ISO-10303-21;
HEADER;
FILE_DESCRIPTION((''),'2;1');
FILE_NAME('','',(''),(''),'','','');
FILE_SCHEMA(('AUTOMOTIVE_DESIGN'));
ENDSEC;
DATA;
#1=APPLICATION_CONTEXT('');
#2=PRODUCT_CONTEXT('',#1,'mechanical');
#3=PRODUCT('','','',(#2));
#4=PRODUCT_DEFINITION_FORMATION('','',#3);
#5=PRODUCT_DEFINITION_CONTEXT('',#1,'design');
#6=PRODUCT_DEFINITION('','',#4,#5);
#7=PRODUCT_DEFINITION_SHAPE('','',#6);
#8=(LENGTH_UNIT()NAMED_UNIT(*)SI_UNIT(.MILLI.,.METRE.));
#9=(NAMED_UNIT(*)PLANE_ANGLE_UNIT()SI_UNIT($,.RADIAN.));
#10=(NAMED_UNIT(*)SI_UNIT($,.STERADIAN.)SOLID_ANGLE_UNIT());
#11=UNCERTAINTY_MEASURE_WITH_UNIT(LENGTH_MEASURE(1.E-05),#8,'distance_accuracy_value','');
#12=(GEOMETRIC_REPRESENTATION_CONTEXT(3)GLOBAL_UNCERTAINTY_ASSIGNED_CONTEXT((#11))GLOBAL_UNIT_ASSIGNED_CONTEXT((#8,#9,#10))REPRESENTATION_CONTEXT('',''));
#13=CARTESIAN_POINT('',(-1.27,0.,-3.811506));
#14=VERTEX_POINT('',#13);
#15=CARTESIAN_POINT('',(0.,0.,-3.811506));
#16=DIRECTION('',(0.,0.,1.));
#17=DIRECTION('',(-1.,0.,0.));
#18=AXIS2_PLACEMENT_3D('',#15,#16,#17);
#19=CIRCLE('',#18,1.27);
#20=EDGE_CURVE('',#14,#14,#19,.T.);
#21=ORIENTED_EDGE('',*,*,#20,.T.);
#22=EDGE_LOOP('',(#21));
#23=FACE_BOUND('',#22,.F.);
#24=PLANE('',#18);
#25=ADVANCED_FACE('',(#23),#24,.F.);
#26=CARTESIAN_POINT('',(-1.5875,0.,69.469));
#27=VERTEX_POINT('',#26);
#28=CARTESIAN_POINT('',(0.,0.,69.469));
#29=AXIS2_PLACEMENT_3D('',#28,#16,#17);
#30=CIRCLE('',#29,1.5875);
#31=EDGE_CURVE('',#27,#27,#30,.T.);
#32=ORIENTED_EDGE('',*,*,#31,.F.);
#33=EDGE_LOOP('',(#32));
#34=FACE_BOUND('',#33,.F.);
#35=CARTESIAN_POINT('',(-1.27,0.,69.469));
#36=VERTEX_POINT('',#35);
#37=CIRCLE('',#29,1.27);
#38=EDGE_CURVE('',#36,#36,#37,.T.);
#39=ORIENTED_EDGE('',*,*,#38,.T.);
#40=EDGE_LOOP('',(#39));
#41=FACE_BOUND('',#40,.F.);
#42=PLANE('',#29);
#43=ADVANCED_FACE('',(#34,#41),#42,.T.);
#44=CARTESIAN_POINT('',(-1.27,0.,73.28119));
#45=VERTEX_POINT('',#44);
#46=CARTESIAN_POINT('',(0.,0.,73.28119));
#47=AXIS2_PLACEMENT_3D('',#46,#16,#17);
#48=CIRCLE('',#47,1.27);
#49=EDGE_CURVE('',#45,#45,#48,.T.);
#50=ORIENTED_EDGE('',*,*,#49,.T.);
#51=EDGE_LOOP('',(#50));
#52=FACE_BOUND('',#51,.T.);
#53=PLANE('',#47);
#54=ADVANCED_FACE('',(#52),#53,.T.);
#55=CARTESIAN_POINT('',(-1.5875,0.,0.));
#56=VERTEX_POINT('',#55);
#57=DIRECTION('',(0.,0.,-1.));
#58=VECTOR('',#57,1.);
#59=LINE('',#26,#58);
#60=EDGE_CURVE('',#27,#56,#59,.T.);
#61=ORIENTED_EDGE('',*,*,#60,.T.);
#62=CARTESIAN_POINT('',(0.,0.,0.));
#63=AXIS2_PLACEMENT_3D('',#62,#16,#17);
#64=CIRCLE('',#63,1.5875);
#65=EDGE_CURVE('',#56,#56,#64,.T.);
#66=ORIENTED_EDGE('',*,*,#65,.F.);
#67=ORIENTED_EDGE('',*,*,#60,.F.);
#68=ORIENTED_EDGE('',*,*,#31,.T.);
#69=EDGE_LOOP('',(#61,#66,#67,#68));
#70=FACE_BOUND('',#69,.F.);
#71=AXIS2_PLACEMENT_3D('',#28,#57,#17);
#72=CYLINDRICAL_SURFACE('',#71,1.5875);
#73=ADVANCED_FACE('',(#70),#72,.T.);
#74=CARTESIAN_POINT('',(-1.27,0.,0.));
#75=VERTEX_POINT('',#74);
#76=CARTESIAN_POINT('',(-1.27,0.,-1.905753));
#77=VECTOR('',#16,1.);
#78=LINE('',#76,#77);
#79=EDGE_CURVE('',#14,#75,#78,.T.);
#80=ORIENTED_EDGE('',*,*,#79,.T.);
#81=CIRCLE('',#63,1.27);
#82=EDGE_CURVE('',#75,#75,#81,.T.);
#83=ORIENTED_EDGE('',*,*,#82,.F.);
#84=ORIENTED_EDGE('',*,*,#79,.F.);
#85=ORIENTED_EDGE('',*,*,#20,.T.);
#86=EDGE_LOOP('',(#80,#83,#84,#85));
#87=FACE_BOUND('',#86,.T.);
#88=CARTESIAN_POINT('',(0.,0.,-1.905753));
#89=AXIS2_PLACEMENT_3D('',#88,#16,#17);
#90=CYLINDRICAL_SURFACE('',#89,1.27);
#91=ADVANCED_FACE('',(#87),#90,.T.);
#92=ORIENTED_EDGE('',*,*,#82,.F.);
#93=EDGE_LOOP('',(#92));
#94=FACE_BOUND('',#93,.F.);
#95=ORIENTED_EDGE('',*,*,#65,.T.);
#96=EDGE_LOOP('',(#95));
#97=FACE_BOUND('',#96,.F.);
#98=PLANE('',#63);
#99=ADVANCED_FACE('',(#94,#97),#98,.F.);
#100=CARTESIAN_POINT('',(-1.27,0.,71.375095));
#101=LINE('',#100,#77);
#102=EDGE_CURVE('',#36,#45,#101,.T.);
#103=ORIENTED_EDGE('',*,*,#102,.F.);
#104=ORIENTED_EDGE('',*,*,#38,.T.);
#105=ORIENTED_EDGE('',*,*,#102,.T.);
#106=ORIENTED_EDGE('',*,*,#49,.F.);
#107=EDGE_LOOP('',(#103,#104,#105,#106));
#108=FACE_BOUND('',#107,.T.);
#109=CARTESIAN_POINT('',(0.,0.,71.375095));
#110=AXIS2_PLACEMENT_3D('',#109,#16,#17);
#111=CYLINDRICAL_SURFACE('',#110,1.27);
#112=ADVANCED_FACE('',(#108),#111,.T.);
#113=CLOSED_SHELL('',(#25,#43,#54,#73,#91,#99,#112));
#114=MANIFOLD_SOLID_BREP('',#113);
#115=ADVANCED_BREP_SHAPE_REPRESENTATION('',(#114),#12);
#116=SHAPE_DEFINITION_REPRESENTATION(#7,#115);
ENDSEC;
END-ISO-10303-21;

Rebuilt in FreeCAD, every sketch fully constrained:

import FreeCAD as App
import Part
import Sketcher
Q = App.Units.Quantity


def add_polygon(sketch, points):
    """Adds a closed chain of lines whose ends are joined by coincident constraints."""
    first, n = sketch.GeometryCount, len(points)
    for a, b in zip(points, points[1:] + points[:1]):
        sketch.addGeometry(Part.LineSegment(App.Vector(*a, 0), App.Vector(*b, 0)), False)
    for i in range(n):
        sketch.addConstraint(Sketcher.Constraint("Coincident", first + i, 2, first + (i + 1) % n, 1))

doc = App.newDocument("Part")
params = doc.addObject("Spreadsheet::Sheet", "Params")
for row, (alias, value) in enumerate([
    ("sketch1_width", "0.05 in"),
    ("sketch1_height", "2.735 in"),
    ("revolution_angle", "360 deg"),
], start=1):
    params.set(f"A{row}", alias)
    params.set(f"B{row}", "=" + value)
    params.setAlias(f"B{row}", alias)

body = doc.addObject("PartDesign::Body", "Body")

sketch1 = body.newObject("Sketcher::SketchObject", "Sketch")
sketch1.AttachmentSupport = (doc.getObject("XZ_Plane"), [""])
sketch1.MapMode = "FlatFace"
add_polygon(sketch1, [(-1.27, 0), (-1.27, -3.81), (0, -3.81), (0, 73.28), (-1.27, 73.28), (-1.27, 69.47), (-1.59, 69.47), (-1.59, 0)])
sketch1.addConstraint([
    Sketcher.Constraint("Vertical", 0),
    Sketcher.Constraint("Horizontal", 1),
    Sketcher.Constraint("Vertical", 2),
    Sketcher.Constraint("Horizontal", 3),
    Sketcher.Constraint("Vertical", 4),
    Sketcher.Constraint("Horizontal", 5),
    Sketcher.Constraint("Vertical", 6),
    Sketcher.Constraint("Horizontal", 7),
    Sketcher.Constraint("PointOnObject", 1, 2, -2),
    Sketcher.Constraint("PointOnObject", 6, 2, -1),
    Sketcher.Constraint("Vertical", 0, 2, 3, 2),
    Sketcher.Constraint("DistanceX", 1, 1, 1, 2, Q("0.05 in")),
    Sketcher.Constraint("DistanceY", 6, 2, 6, 1, Q("2.735 in")),
    Sketcher.Constraint("DistanceX", 5, 2, 5, 1, Q("0.0125 in")),
    Sketcher.Constraint("DistanceY", 4, 2, 4, 1, Q("3.81219 mm")),
    Sketcher.Constraint("DistanceY", 0, 2, 0, 1, Q("3.811506 mm")),
])
sketch1.setExpression("Constraints[19]", "Params.sketch1_width")
sketch1.setExpression("Constraints[20]", "Params.sketch1_height")
revolution = body.newObject("PartDesign::Revolution", "Revolution")
revolution.Profile = sketch1
revolution.ReferenceAxis = (sketch1, ["V_Axis"])
revolution.setExpression("Angle", "Params.revolution_angle")

doc.recompute()
